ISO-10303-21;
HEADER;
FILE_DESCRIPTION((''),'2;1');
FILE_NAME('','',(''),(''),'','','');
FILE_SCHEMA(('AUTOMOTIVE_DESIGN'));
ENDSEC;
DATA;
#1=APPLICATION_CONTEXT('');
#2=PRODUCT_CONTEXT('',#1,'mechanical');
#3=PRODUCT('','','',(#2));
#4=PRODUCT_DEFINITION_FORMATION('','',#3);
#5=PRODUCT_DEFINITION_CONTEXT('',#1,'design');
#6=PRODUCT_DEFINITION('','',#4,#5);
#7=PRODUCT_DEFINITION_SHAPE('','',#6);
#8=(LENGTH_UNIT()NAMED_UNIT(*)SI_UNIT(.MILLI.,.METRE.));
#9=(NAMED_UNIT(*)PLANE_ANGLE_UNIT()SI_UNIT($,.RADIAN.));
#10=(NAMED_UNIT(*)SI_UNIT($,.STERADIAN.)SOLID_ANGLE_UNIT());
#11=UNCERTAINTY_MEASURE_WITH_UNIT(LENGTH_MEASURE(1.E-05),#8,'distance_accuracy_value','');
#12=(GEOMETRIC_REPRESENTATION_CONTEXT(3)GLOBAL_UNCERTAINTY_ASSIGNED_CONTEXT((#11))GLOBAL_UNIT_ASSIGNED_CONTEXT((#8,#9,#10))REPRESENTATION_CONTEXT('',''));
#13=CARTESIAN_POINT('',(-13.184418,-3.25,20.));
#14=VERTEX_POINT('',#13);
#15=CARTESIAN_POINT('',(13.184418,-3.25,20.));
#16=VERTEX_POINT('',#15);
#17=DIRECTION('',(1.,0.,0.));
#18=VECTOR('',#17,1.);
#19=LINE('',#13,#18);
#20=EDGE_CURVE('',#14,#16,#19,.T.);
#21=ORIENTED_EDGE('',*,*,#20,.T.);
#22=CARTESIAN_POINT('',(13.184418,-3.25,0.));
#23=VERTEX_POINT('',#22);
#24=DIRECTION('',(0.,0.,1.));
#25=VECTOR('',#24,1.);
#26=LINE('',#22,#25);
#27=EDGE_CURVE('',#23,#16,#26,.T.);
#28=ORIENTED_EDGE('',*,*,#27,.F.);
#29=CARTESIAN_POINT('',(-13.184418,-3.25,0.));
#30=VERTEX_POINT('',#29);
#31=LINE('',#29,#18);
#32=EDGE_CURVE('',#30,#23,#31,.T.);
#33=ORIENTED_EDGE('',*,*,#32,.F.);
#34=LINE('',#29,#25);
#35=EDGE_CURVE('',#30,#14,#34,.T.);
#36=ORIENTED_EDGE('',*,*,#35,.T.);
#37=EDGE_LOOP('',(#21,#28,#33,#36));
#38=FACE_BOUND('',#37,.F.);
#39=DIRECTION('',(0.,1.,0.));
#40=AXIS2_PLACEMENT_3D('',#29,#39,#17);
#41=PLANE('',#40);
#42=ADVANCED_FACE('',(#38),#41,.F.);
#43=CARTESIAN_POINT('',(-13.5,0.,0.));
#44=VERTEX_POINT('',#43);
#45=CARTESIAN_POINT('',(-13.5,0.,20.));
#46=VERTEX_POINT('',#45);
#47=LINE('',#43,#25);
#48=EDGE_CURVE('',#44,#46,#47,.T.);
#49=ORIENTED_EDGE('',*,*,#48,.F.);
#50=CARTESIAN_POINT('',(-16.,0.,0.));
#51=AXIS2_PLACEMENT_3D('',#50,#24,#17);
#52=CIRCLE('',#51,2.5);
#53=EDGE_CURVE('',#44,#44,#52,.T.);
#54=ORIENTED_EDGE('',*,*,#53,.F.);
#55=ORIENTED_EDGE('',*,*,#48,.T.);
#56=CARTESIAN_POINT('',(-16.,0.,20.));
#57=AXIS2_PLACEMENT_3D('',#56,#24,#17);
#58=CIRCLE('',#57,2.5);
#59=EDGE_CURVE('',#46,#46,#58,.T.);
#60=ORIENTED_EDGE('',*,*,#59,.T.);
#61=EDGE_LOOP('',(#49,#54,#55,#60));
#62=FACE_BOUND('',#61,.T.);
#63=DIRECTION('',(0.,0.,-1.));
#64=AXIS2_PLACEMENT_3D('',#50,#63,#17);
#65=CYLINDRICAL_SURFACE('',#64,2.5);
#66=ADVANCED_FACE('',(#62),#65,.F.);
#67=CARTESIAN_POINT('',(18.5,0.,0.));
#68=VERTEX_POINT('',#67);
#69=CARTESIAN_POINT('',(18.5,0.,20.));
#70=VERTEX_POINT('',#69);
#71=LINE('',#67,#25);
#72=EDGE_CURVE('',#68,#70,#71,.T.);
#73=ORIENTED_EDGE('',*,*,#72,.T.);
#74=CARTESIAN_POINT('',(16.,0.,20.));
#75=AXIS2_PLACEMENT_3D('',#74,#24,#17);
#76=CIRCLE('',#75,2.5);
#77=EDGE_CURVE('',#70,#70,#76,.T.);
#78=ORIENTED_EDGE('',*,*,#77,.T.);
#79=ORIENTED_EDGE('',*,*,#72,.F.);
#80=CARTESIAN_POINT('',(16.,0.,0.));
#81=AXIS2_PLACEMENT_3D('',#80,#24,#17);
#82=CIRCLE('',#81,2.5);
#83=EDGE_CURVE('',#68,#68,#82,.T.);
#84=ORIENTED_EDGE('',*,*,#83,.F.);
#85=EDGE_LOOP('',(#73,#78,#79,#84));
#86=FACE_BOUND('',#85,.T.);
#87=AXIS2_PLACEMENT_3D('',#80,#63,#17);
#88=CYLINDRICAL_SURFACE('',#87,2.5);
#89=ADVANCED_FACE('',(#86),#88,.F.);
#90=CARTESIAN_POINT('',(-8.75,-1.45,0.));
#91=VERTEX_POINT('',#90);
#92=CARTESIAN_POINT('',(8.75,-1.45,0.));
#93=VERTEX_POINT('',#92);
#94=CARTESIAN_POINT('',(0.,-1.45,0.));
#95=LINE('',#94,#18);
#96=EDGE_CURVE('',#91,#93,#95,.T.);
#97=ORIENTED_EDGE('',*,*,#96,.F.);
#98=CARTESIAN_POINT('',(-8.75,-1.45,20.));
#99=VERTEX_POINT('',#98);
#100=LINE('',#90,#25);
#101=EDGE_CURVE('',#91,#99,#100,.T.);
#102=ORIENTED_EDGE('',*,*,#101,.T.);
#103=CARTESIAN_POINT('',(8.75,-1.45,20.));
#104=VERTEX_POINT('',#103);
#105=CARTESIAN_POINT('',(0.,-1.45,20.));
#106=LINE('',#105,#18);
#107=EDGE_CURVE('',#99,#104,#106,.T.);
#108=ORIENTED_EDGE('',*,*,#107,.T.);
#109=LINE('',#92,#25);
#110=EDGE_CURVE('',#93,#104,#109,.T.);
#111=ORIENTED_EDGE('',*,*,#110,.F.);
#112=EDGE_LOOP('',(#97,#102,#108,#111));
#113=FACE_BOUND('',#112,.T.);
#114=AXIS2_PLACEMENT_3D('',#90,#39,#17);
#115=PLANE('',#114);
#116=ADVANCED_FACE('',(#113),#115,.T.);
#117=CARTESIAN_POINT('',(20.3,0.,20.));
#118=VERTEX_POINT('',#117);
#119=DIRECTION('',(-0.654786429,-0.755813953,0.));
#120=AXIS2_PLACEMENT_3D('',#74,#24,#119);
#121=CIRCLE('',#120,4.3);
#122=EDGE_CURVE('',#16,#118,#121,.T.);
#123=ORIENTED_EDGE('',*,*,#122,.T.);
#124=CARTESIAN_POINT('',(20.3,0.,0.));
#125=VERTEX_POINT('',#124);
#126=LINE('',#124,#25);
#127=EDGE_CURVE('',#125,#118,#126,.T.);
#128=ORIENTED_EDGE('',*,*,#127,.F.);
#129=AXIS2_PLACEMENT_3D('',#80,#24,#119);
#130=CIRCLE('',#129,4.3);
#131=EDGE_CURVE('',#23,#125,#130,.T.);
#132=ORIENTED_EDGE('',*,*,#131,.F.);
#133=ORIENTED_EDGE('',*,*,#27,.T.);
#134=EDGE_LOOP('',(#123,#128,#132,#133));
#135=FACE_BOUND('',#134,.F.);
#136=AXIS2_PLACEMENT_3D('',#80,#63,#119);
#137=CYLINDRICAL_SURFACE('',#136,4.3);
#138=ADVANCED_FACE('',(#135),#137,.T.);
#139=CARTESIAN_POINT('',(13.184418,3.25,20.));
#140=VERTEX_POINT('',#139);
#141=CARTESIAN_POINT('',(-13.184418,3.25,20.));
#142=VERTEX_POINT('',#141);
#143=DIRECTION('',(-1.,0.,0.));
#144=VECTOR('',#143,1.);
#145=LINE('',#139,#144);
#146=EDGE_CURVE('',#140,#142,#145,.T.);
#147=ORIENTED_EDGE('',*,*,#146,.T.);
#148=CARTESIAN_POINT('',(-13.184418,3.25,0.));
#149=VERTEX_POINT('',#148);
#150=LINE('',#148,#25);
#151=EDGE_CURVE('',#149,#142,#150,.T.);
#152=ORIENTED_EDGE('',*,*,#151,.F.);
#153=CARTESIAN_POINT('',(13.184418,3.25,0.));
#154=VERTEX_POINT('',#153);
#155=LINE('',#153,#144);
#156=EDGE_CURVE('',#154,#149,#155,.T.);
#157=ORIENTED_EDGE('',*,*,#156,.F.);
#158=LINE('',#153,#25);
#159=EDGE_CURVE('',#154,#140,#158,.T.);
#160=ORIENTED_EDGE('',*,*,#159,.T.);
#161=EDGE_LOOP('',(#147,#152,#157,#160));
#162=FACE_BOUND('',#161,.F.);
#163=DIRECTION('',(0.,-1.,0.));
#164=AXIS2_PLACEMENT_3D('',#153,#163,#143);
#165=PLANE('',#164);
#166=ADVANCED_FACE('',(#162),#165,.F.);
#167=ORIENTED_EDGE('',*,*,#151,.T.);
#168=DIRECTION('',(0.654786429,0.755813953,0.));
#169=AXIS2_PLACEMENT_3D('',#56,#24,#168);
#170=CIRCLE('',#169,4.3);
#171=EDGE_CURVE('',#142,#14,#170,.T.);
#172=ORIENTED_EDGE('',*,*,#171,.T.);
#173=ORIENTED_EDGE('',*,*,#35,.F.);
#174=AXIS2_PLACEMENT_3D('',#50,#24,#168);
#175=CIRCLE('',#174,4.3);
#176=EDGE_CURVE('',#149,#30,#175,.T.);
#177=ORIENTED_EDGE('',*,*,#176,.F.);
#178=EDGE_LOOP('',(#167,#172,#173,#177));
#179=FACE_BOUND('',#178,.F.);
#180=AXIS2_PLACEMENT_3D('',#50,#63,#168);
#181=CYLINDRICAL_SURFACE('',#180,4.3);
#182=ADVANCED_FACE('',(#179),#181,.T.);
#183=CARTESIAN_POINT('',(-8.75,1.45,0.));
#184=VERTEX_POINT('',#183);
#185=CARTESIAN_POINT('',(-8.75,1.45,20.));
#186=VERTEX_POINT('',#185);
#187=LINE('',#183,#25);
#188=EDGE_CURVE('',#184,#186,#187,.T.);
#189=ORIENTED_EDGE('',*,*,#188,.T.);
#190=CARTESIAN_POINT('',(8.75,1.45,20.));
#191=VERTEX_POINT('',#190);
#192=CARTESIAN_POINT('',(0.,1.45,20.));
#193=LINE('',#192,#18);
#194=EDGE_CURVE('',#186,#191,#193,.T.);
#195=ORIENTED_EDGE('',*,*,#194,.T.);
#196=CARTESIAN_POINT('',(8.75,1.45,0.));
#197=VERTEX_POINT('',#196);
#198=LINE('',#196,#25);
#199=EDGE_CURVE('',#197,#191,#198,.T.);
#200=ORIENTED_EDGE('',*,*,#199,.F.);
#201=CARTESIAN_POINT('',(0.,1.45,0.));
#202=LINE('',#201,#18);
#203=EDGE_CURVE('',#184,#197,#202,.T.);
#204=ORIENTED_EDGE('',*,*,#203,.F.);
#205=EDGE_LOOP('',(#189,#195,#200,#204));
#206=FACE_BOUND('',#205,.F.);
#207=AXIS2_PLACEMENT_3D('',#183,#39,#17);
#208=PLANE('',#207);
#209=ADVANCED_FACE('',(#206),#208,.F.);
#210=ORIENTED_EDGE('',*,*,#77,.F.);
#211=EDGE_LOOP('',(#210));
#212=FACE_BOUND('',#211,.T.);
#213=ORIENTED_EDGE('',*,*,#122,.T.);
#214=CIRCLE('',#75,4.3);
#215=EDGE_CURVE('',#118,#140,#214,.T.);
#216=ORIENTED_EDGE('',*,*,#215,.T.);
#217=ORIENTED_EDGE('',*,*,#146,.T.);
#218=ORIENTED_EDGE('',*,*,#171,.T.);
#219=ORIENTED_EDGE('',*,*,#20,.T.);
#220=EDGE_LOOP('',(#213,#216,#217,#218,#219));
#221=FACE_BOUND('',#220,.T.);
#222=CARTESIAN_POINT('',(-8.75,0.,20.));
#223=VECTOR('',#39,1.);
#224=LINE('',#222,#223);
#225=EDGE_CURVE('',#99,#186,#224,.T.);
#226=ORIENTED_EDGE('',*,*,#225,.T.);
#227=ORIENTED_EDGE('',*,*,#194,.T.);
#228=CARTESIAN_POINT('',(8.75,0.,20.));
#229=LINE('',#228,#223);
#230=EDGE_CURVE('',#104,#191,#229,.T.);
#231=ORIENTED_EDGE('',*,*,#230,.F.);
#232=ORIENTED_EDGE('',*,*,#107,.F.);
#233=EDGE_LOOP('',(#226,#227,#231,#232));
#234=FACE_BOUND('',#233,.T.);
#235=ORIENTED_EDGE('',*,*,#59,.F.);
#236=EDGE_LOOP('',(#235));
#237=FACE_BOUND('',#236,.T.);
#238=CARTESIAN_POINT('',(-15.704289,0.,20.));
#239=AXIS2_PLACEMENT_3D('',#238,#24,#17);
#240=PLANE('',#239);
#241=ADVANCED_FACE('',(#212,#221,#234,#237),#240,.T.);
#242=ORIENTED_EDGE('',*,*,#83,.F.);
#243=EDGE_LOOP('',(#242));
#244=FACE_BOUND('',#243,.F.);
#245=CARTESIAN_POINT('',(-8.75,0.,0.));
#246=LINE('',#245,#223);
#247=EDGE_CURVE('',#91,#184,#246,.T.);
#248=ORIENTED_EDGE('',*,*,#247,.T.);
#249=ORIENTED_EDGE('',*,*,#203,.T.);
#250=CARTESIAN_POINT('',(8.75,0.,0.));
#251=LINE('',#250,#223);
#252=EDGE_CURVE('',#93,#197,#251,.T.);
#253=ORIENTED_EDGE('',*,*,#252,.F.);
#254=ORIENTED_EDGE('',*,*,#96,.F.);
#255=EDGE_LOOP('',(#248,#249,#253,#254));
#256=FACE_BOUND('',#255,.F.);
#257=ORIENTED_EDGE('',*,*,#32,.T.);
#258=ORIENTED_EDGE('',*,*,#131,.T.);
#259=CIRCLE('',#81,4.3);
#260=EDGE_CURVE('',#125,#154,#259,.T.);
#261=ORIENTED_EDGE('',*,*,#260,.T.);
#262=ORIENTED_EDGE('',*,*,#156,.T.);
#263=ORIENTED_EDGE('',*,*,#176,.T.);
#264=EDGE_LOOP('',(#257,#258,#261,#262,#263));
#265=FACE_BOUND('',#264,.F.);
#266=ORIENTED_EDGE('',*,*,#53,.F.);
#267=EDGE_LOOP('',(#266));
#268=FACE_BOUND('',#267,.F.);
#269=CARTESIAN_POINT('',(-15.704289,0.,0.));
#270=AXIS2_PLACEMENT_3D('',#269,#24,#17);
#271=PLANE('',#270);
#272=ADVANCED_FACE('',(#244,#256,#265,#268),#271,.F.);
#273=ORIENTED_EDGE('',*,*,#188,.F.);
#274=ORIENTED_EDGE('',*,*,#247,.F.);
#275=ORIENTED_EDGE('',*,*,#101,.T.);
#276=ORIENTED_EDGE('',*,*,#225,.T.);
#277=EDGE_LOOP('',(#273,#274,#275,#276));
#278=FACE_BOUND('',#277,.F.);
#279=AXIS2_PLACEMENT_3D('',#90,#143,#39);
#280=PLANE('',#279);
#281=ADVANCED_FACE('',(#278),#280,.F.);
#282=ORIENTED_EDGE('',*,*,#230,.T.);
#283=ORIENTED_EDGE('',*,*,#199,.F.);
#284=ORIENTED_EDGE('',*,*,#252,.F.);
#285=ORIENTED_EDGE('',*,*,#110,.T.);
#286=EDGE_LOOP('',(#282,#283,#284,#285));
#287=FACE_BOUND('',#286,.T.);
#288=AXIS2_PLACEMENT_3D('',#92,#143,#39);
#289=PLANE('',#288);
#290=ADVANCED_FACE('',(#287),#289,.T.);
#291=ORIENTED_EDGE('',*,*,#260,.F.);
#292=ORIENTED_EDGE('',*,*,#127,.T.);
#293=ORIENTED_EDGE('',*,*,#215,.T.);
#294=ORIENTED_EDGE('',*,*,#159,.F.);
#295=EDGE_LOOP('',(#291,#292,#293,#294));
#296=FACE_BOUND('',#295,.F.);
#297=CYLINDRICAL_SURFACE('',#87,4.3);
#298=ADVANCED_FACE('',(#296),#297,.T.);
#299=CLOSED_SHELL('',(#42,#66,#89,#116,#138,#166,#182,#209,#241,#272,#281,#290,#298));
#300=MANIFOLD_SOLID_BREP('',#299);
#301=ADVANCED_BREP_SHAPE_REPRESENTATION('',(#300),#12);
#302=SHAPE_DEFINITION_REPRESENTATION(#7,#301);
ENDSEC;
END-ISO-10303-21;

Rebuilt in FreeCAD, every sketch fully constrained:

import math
import FreeCAD as App
import Part
import Sketcher
from FreeCAD import Vector


def add_polygon(sketch, points):
    """Adds a closed chain of lines whose ends are joined by coincident constraints."""
    first, n = sketch.GeometryCount, len(points)
    for a, b in zip(points, points[1:] + points[:1]):
        sketch.addGeometry(Part.LineSegment(App.Vector(*a, 0), App.Vector(*b, 0)), False)
    for i in range(n):
        sketch.addConstraint(Sketcher.Constraint("Coincident", first + i, 2, first + (i + 1) % n, 1))

doc = App.newDocument("Part")
params = doc.addObject("Spreadsheet::Sheet", "Params")
for row, (alias, value) in enumerate([
    ("sketch1_diameter", "5 mm"),
    ("sketch1_radius", "4.3 mm"),
    ("sketch1_width", "17.5 mm"),
    ("sketch1_height", "2.9 mm"),
    ("pad1_length", "20 mm"),
], start=1):
    params.set(f"A{row}", alias)
    params.set(f"B{row}", "=" + value)
    params.setAlias(f"B{row}", alias)

body = doc.addObject("PartDesign::Body", "Body")

# Sketch on XY plane
sketch1 = doc.addObject("Sketcher::SketchObject", "Sketch")
body.addObject(sketch1)
sketch1.AttachmentSupport = (doc.XY_Plane, [""])
sketch1.MapMode = "FlatFace"
sketch1.addGeometry(Part.ArcOfCircle(Part.Circle(Vector(-16, 0, 0), Vector(0, 0, 1), 4.3), math.radians(49.096542), math.radians(310.903458)), False)  # 0
sketch1.addGeometry(Part.LineSegment(Vector(-13.184418, -3.25, 0), Vector(13.184418, -3.25, 0)), False)  # 1
sketch1.addGeometry(Part.ArcOfCircle(Part.Circle(Vector(16, 0, 0), Vector(0, 0, 1), 4.3), math.radians(-130.903458), math.radians(0)), False)  # 2
sketch1.addGeometry(Part.ArcOfCircle(Part.Circle(Vector(16, 0, 0), Vector(0, 0, 1), 4.3), math.radians(0), math.radians(130.903458)), False)  # 3
sketch1.addGeometry(Part.LineSegment(Vector(13.184418, 3.25, 0), Vector(-13.184418, 3.25, 0)), False)  # 4
sketch1.addGeometry(Part.Circle(Vector(-16, 0, 0), Vector(0, 0, 1), 2.5), False)  # 5
add_polygon(sketch1, [(8.75, -1.45), (-8.75, -1.45), (-8.75, 1.45), (8.75, 1.45)])  # lines 6-9
sketch1.addGeometry(Part.Circle(Vector(16, 0, 0), Vector(0, 0, 1), 2.5), False)  # 10
sketch1.addConstraint([
    Sketcher.Constraint("Coincident", 0, 2, 1, 1),
    Sketcher.Constraint("Coincident", 1, 2, 2, 1),
    Sketcher.Constraint("Tangent", 2, 2, 3, 1),
    Sketcher.Constraint("Coincident", 3, 2, 4, 1),
    Sketcher.Constraint("Coincident", 4, 2, 0, 1),
    Sketcher.Constraint("Horizontal", 1),
    Sketcher.Constraint("Horizontal", 4),
    Sketcher.Constraint("Horizontal", 6),
    Sketcher.Constraint("Vertical", 7),
    Sketcher.Constraint("Horizontal", 8),
    Sketcher.Constraint("Vertical", 9),
    Sketcher.Constraint("Coincident", 5, 3, 0, 3),
    Sketcher.Constraint("Coincident", 10, 3, 2, 3),
    Sketcher.Constraint("Equal", 0, 2),
    Sketcher.Constraint("Equal", 2, 3),
    Sketcher.Constraint("Equal", 5, 10),
    Sketcher.Constraint("Symmetric", 0, 3, 2, 3, -1, 1),
    Sketcher.Constraint("Symmetric", 6, 2, 8, 2, -1, 1),
    Sketcher.Constraint("Symmetric", 1, 2, 3, 2, -1),
    Sketcher.Constraint("PointOnObject", 2, 2, -1),
    Sketcher.Constraint("Diameter", 5, 5.0),
    Sketcher.Constraint("Radius", 0, 4.3),
    Sketcher.Constraint("DistanceX", 6, 2, 6, 1, 17.5),
    Sketcher.Constraint("DistanceY", 7, 1, 7, 2, 2.9),
    Sketcher.Constraint("DistanceX", 0, 3, -1, 1, 16.0),
    Sketcher.Constraint("DistanceY", 1, 2, 3, 2, 6.5),
])
sketch1.setExpression("Constraints[24]", "Params.sketch1_diameter")
sketch1.setExpression("Constraints[25]", "Params.sketch1_radius")
sketch1.setExpression("Constraints[26]", "Params.sketch1_width")
sketch1.setExpression("Constraints[27]", "Params.sketch1_height")
pad1 = doc.addObject("PartDesign::Pad", "Pad")
body.addObject(pad1)
pad1.Profile = sketch1
pad1.setExpression("Length", "Params.pad1_length")

doc.recompute()
